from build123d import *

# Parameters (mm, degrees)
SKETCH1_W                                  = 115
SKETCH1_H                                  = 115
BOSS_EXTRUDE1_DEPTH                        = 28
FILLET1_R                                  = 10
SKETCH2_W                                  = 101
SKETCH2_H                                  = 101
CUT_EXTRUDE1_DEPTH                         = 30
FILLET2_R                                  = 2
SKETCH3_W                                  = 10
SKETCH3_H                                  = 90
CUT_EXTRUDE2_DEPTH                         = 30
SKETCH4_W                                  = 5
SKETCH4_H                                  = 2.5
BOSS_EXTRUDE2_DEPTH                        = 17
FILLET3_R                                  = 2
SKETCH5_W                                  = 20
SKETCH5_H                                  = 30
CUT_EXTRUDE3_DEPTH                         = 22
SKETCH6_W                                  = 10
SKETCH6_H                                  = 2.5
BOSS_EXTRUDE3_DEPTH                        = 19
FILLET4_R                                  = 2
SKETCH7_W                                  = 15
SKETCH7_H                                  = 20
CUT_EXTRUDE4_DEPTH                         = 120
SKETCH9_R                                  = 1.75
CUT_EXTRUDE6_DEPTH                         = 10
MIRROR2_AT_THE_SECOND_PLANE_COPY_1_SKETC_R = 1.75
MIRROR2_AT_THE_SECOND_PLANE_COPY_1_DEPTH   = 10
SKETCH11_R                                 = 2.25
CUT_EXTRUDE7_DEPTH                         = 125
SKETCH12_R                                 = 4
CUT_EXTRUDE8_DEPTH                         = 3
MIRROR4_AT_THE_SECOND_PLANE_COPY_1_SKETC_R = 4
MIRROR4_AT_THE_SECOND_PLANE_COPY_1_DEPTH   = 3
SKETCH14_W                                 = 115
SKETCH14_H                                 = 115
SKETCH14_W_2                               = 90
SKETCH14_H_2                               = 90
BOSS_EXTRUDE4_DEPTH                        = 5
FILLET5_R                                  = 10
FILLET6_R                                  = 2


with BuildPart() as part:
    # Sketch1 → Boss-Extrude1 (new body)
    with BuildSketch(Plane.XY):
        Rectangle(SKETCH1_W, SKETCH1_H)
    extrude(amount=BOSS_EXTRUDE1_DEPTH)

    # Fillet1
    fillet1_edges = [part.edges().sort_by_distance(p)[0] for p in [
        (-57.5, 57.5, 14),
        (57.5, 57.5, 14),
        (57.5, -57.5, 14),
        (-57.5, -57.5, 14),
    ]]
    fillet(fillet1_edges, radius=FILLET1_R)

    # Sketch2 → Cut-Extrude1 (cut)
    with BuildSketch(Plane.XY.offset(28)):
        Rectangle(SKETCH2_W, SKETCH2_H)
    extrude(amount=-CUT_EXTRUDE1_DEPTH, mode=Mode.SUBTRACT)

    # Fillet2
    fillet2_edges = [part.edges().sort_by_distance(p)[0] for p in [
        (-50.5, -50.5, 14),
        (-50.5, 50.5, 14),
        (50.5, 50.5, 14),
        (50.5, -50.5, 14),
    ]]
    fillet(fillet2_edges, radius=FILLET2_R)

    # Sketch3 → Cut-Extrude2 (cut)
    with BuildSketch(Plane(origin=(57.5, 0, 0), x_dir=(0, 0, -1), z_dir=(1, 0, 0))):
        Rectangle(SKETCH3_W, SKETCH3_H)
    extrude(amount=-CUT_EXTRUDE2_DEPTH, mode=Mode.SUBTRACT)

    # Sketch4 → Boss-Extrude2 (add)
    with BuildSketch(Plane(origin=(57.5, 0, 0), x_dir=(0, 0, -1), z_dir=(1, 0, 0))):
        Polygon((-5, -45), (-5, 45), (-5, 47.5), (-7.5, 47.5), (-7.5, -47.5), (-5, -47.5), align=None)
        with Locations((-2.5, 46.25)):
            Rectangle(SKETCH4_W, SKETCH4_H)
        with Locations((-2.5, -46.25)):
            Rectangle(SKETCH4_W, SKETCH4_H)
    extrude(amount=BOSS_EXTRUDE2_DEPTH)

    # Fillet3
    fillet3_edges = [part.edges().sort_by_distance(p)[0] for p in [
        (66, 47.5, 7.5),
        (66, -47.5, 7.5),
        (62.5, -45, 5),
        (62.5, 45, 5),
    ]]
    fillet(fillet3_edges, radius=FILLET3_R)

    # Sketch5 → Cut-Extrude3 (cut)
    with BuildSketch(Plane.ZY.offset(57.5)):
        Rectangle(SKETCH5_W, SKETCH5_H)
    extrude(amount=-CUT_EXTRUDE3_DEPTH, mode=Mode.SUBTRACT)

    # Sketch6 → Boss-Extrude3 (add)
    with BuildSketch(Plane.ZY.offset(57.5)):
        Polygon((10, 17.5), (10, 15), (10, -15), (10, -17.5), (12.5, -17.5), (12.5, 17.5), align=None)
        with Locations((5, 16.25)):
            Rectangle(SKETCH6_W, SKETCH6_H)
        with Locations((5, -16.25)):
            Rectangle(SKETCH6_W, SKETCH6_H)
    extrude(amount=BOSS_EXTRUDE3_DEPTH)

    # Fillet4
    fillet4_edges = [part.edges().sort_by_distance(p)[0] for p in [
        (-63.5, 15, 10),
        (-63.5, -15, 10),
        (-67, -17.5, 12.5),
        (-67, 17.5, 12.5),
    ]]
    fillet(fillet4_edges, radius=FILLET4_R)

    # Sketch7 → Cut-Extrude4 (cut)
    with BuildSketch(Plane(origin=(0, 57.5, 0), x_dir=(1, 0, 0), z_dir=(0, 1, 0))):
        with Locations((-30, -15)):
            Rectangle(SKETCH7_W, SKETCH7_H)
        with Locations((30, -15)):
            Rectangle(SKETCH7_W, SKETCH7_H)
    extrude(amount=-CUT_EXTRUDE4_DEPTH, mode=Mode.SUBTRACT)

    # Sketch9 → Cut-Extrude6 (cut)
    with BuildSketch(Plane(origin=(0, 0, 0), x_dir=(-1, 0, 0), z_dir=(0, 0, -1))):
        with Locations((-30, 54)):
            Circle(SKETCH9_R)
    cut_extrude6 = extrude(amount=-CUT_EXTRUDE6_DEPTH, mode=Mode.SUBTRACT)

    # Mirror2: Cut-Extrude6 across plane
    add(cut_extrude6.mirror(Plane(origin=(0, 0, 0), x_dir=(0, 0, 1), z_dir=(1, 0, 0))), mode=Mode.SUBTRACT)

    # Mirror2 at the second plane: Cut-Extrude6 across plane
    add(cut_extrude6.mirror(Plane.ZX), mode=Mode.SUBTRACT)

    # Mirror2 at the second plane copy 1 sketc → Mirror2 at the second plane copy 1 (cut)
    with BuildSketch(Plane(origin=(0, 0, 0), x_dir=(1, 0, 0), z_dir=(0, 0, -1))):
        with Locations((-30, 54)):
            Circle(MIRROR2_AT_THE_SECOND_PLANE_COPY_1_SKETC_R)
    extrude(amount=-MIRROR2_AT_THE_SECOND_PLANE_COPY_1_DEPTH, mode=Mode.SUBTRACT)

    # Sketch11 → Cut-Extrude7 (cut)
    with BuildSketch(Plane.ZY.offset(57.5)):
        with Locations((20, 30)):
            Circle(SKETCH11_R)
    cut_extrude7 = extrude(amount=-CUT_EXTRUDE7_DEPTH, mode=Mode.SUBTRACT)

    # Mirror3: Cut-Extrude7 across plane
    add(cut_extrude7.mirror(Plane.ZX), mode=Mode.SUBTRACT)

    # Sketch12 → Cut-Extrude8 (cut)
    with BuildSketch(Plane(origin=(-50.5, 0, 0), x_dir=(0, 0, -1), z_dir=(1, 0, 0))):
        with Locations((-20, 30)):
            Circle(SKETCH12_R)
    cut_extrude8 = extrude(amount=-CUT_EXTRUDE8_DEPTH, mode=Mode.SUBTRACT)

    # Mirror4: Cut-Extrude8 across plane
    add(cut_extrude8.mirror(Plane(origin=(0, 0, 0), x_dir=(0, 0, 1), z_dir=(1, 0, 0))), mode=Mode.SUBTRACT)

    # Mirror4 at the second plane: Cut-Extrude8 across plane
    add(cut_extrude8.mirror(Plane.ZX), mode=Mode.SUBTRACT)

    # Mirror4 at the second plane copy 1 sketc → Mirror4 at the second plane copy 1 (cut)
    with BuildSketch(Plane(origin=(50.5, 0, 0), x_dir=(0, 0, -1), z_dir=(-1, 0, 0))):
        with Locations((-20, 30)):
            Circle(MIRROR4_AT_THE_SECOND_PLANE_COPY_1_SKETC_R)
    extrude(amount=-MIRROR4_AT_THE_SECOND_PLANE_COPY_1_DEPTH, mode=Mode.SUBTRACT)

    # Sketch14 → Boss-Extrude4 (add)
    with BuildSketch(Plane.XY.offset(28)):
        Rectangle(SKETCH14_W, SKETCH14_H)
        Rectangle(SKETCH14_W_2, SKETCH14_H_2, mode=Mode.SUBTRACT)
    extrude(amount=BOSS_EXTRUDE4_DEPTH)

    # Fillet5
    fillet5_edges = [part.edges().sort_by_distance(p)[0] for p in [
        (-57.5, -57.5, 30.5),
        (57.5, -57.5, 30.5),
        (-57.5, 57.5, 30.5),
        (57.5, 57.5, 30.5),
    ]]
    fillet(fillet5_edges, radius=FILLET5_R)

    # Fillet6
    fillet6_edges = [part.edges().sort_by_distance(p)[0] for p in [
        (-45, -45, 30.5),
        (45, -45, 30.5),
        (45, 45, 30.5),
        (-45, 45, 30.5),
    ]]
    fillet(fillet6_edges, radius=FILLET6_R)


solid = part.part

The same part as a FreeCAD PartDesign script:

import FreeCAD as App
import Part
import Sketcher

V = App.Vector
Q = App.Units.Quantity


def edges_at(feature, points):
    """Names of the edges that pass closest to the given points."""
    edges = feature.Shape.Edges
    near = lambda p: min(range(len(edges)), key=lambda i: edges[i].distToShape(Part.Vertex(*p))[0])
    return sorted({f"Edge{near(p) + 1}" for p in points})

doc = App.newDocument("Part")
body = doc.addObject("PartDesign::Body", "Body")

# Sketch on XY plane
sketch1 = body.newObject("Sketcher::SketchObject", "Sketch")
sketch1.AttachmentSupport = (doc.getObject("XY_Plane"), [""])
sketch1.MapMode = "FlatFace"
sketch1.addGeometry([
    Part.LineSegment(V(-57.5, 57.5, 0), V(-57.5, -57.5, 0)),
    Part.LineSegment(V(-57.5, -57.5, 0), V(57.5, -57.5, 0)),
    Part.LineSegment(V(57.5, -57.5, 0), V(57.5, 57.5, 0)),
    Part.LineSegment(V(57.5, 57.5, 0), V(-57.5, 57.5, 0)),
], False)
sketch1.addConstraint([
    Sketcher.Constraint("Coincident", 0, 2, 1, 1),
    Sketcher.Constraint("Coincident", 1, 2, 2, 1),
    Sketcher.Constraint("Coincident", 2, 2, 3, 1),
    Sketcher.Constraint("Coincident", 3, 2, 0, 1),
    Sketcher.Constraint("Vertical", 0),
    Sketcher.Constraint("Horizontal", 1),
    Sketcher.Constraint("Vertical", 2),
    Sketcher.Constraint("Horizontal", 3),
    Sketcher.Constraint("Symmetric", 0, 2, 2, 2, -1, 1),
    Sketcher.Constraint("Equal", 3, 0),
    Sketcher.Constraint("DistanceX", 1, 1, 1, 2, Q("115 mm")),
])
pad1 = body.newObject("PartDesign::Pad", "Pad")
pad1.Profile = sketch1
pad1.Length = 28
doc.recompute()

fillet = body.newObject("PartDesign::Fillet", "Fillet")
fillet.Base = (pad1, edges_at(pad1, [
    (-57.5, 57.5, 14),
    (57.5, 57.5, 14),
    (57.5, -57.5, 14),
    (-57.5, -57.5, 14),
]))
fillet.Radius = 10

# Sketch on XY plane
sketch2 = body.newObject("Sketcher::SketchObject", "Sketch001")
sketch2.AttachmentSupport = (doc.getObject("XY_Plane"), [""])
sketch2.MapMode = "FlatFace"
sketch2.AttachmentOffset = App.Placement(V(0, 0, 28), App.Rotation())
sketch2.addGeometry([
    Part.LineSegment(V(-50.5, 50.5, 0), V(-50.5, -50.5, 0)),
    Part.LineSegment(V(-50.5, -50.5, 0), V(50.5, -50.5, 0)),
    Part.LineSegment(V(50.5, -50.5, 0), V(50.5, 50.5, 0)),
    Part.LineSegment(V(50.5, 50.5, 0), V(-50.5, 50.5, 0)),
], False)
sketch2.addConstraint([
    Sketcher.Constraint("Coincident", 0, 2, 1, 1),
    Sketcher.Constraint("Coincident", 1, 2, 2, 1),
    Sketcher.Constraint("Coincident", 2, 2, 3, 1),
    Sketcher.Constraint("Coincident", 3, 2, 0, 1),
    Sketcher.Constraint("Vertical", 0),
    Sketcher.Constraint("Horizontal", 1),
    Sketcher.Constraint("Vertical", 2),
    Sketcher.Constraint("Horizontal", 3),
    Sketcher.Constraint("Symmetric", 0, 2, 2, 2, -1, 1),
    Sketcher.Constraint("Equal", 3, 0),
    Sketcher.Constraint("DistanceX", 1, 1, 1, 2, Q("101 mm")),
])
pocket1 = body.newObject("PartDesign::Pocket", "Pocket")
pocket1.Profile = sketch2
pocket1.Length = 30
doc.recompute()

fillet2 = body.newObject("PartDesign::Fillet", "Fillet001")
fillet2.Base = (pocket1, edges_at(pocket1, [
    (-50.5, -50.5, 14),
    (-50.5, 50.5, 14),
    (50.5, 50.5, 14),
    (50.5, -50.5, 14),
]))
fillet2.Radius = 2

# Sketch on YZ plane
sketch3 = body.newObject("Sketcher::SketchObject", "Sketch002")
sketch3.AttachmentSupport = (doc.getObject("YZ_Plane"), [""])
sketch3.MapMode = "FlatFace"
sketch3.AttachmentOffset = App.Placement(V(0, 0, 57.5), App.Rotation())
sketch3.addGeometry([
    Part.LineSegment(V(45, 5, 0), V(-45, 5, 0)),
    Part.LineSegment(V(-45, 5, 0), V(-45, -5, 0)),
    Part.LineSegment(V(-45, -5, 0), V(45, -5, 0)),
    Part.LineSegment(V(45, -5, 0), V(45, 5, 0)),
], False)
sketch3.addConstraint([
    Sketcher.Constraint("Coincident", 0, 2, 1, 1),
    Sketcher.Constraint("Coincident", 1, 2, 2, 1),
    Sketcher.Constraint("Coincident", 2, 2, 3, 1),
    Sketcher.Constraint("Coincident", 3, 2, 0, 1),
    Sketcher.Constraint("Horizontal", 0),
    Sketcher.Constraint("Vertical", 1),
    Sketcher.Constraint("Horizontal", 2),
    Sketcher.Constraint("Vertical", 3),
    Sketcher.Constraint("Symmetric", 0, 2, 2, 2, -1, 1),
    Sketcher.Constraint("DistanceX", 0, 2, 0, 1, Q("90 mm")),
    Sketcher.Constraint("DistanceY", 1, 2, 1, 1, Q("10 mm")),
])
pocket2 = body.newObject("PartDesign::Pocket", "Pocket001")
pocket2.Profile = sketch3
pocket2.Length = 30

# Sketch on YZ plane
sketch4 = body.newObject("Sketcher::SketchObject", "Sketch003")
sketch4.AttachmentSupport = (doc.getObject("YZ_Plane"), [""])
sketch4.MapMode = "FlatFace"
sketch4.AttachmentOffset = App.Placement(V(0, 0, 57.5), App.Rotation())
sketch4.addGeometry([
    Part.LineSegment(V(47.5, 7.5, 0), V(-47.5, 7.5, 0)),  # 0
    Part.LineSegment(V(-47.5, 7.5, 0), V(-47.5, 0, 0)),  # 1
    Part.LineSegment(V(-47.5, 0, 0), V(-45, 0, 0)),  # 2
    Part.LineSegment(V(-45, 0, 0), V(-45, 5, 0)),  # 3
    Part.LineSegment(V(-45, 5, 0), V(45, 5, 0)),  # 4
    Part.LineSegment(V(45, 5, 0), V(45, 0, 0)),  # 5
    Part.LineSegment(V(45, 0, 0), V(47.5, 0, 0)),  # 6
    Part.LineSegment(V(47.5, 0, 0), V(47.5, 7.5, 0)),  # 7
], False)
sketch4.addConstraint([
    Sketcher.Constraint("Coincident", 0, 2, 1, 1),
    Sketcher.Constraint("Coincident", 1, 2, 2, 1),
    Sketcher.Constraint("Coincident", 2, 2, 3, 1),
    Sketcher.Constraint("Coincident", 3, 2, 4, 1),
    Sketcher.Constraint("Coincident", 4, 2, 5, 1),
    Sketcher.Constraint("Coincident", 5, 2, 6, 1),
    Sketcher.Constraint("Coincident", 6, 2, 7, 1),
    Sketcher.Constraint("Coincident", 7, 2, 0, 1),
    Sketcher.Constraint("Horizontal", 0),
    Sketcher.Constraint("Vertical", 1),
    Sketcher.Constraint("Horizontal", 2),
    Sketcher.Constraint("Vertical", 3),
    Sketcher.Constraint("Horizontal", 4),
    Sketcher.Constraint("Vertical", 5),
    Sketcher.Constraint("Horizontal", 6),
    Sketcher.Constraint("Vertical", 7),
    Sketcher.Constraint("Symmetric", 2, 2, 5, 2, -1, 1),
    Sketcher.Constraint("Symmetric", 1, 2, 6, 2, -2),
    Sketcher.Constraint("DistanceX", 0, 2, 0, 1, Q("95 mm")),
    Sketcher.Constraint("DistanceX", 4, 1, 4, 2, Q("90 mm")),
    Sketcher.Constraint("DistanceY", 3, 1, 3, 2, Q("5 mm")),
    Sketcher.Constraint("DistanceY", 1, 2, 1, 1, Q("7.5 mm")),
])
pad2 = body.newObject("PartDesign::Pad", "Pad001")
pad2.Profile = sketch4
pad2.Length = 17
doc.recompute()

fillet3 = body.newObject("PartDesign::Fillet", "Fillet002")
fillet3.Base = (pad2, edges_at(pad2, [
    (66, 47.5, 7.5),
    (66, -47.5, 7.5),
    (62.5, -45, 5),
    (62.5, 45, 5),
]))
fillet3.Radius = 2

# Sketch on YZ plane
sketch5 = body.newObject("Sketcher::SketchObject", "Sketch004")
sketch5.AttachmentSupport = (doc.getObject("YZ_Plane"), [""])
sketch5.MapMode = "FlatFace"
sketch5.AttachmentOffset = App.Placement(V(0, 0, -57.5), App.Rotation())
sketch5.addGeometry([
    Part.LineSegment(V(15, -10, 0), V(-15, -10, 0)),
    Part.LineSegment(V(-15, -10, 0), V(-15, 10, 0)),
    Part.LineSegment(V(-15, 10, 0), V(15, 10, 0)),
    Part.LineSegment(V(15, 10, 0), V(15, -10, 0)),
], False)
sketch5.addConstraint([
    Sketcher.Constraint("Coincident", 0, 2, 1, 1),
    Sketcher.Constraint("Coincident", 1, 2, 2, 1),
    Sketcher.Constraint("Coincident", 2, 2, 3, 1),
    Sketcher.Constraint("Coincident", 3, 2, 0, 1),
    Sketcher.Constraint("Horizontal", 0),
    Sketcher.Constraint("Vertical", 1),
    Sketcher.Constraint("Horizontal", 2),
    Sketcher.Constraint("Vertical", 3),
    Sketcher.Constraint("Symmetric", 0, 2, 2, 2, -1, 1),
    Sketcher.Constraint("DistanceX", 0, 2, 0, 1, Q("30 mm")),
    Sketcher.Constraint("DistanceY", 1, 1, 1, 2, Q("20 mm")),
])
pocket3 = body.newObject("PartDesign::Pocket", "Pocket002")
pocket3.Profile = sketch5
pocket3.Length = 22
pocket3.Reversed = True

# Sketch on YZ plane
sketch6 = body.newObject("Sketcher::SketchObject", "Sketch005")
sketch6.AttachmentSupport = (doc.getObject("YZ_Plane"), [""])
sketch6.MapMode = "FlatFace"
sketch6.AttachmentOffset = App.Placement(V(0, 0, -57.5), App.Rotation())
sketch6.addGeometry([
    Part.LineSegment(V(15, 10, 0), V(-15, 10, 0)),  # 0
    Part.LineSegment(V(-15, 10, 0), V(-15, 0, 0)),  # 1
    Part.LineSegment(V(-15, 0, 0), V(-17.5, 0, 0)),  # 2
    Part.LineSegment(V(-17.5, 0, 0), V(-17.5, 12.5, 0)),  # 3
    Part.LineSegment(V(-17.5, 12.5, 0), V(17.5, 12.5, 0)),  # 4
    Part.LineSegment(V(17.5, 12.5, 0), V(17.5, 0, 0)),  # 5
    Part.LineSegment(V(17.5, 0, 0), V(15, 0, 0)),  # 6
    Part.LineSegment(V(15, 0, 0), V(15, 10, 0)),  # 7
], False)
sketch6.addConstraint([
    Sketcher.Constraint("Coincident", 0, 2, 1, 1),
    Sketcher.Constraint("Coincident", 1, 2, 2, 1),
    Sketcher.Constraint("Coincident", 2, 2, 3, 1),
    Sketcher.Constraint("Coincident", 3, 2, 4, 1),
    Sketcher.Constraint("Coincident", 4, 2, 5, 1),
    Sketcher.Constraint("Coincident", 5, 2, 6, 1),
    Sketcher.Constraint("Coincident", 6, 2, 7, 1),
    Sketcher.Constraint("Coincident", 7, 2, 0, 1),
    Sketcher.Constraint("Horizontal", 0),
    Sketcher.Constraint("Vertical", 1),
    Sketcher.Constraint("Horizontal", 2),
    Sketcher.Constraint("Vertical", 3),
    Sketcher.Constraint("Horizontal", 4),
    Sketcher.Constraint("Vertical", 5),
    Sketcher.Constraint("Horizontal", 6),
    Sketcher.Constraint("Vertical", 7),
    Sketcher.Constraint("Symmetric", 2, 2, 5, 2, -1, 1),
    Sketcher.Constraint("Symmetric", 1, 2, 6, 2, -2),
    Sketcher.Constraint("DistanceX", 0, 2, 0, 1, Q("30 mm")),
    Sketcher.Constraint("DistanceX", 4, 1, 4, 2, Q("35 mm")),
    Sketcher.Constraint("DistanceY", 1, 2, 1, 1, Q("10 mm")),
    Sketcher.Constraint("DistanceY", 3, 1, 3, 2, Q("12.5 mm")),
])
pad3 = body.newObject("PartDesign::Pad", "Pad002")
pad3.Profile = sketch6
pad3.Length = 19
pad3.Reversed = True
doc.recompute()

fillet4 = body.newObject("PartDesign::Fillet", "Fillet003")
fillet4.Base = (pad3, edges_at(pad3, [
    (-63.5, 15, 10),
    (-63.5, -15, 10),
    (-67, -17.5, 12.5),
    (-67, 17.5, 12.5),
]))
fillet4.Radius = 2

# Sketch on XZ plane
sketch7 = body.newObject("Sketcher::SketchObject", "Sketch006")
sketch7.AttachmentSupport = (doc.getObject("XZ_Plane"), [""])
sketch7.MapMode = "FlatFace"
sketch7.AttachmentOffset = App.Placement(V(0, 0, -57.5), App.Rotation())
sketch7.addGeometry([
    Part.LineSegment(V(-37.5, 5, 0), V(-37.5, 25, 0)),  # 0
    Part.LineSegment(V(-37.5, 25, 0), V(-22.5, 25, 0)),  # 1
    Part.LineSegment(V(-22.5, 25, 0), V(-22.5, 5, 0)),  # 2
    Part.LineSegment(V(-22.5, 5, 0), V(-37.5, 5, 0)),  # 3
    Part.LineSegment(V(22.5, 5, 0), V(22.5, 25, 0)),  # 4
    Part.LineSegment(V(22.5, 25, 0), V(37.5, 25, 0)),  # 5
    Part.LineSegment(V(37.5, 25, 0), V(37.5, 5, 0)),  # 6
    Part.LineSegment(V(37.5, 5, 0), V(22.5, 5, 0)),  # 7
], False)
sketch7.addConstraint([
    Sketcher.Constraint("Coincident", 0, 2, 1, 1),
    Sketcher.Constraint("Coincident", 1, 2, 2, 1),
    Sketcher.Constraint("Coincident", 2, 2, 3, 1),
    Sketcher.Constraint("Coincident", 3, 2, 0, 1),
    Sketcher.Constraint("Coincident", 4, 2, 5, 1),
    Sketcher.Constraint("Coincident", 5, 2, 6, 1),
    Sketcher.Constraint("Coincident", 6, 2, 7, 1),
    Sketcher.Constraint("Coincident", 7, 2, 4, 1),
    Sketcher.Constraint("Vertical", 0),
    Sketcher.Constraint("Horizontal", 1),
    Sketcher.Constraint("Vertical", 2),
    Sketcher.Constraint("Horizontal", 3),
    Sketcher.Constraint("Vertical", 4),
    Sketcher.Constraint("Horizontal", 5),
    Sketcher.Constraint("Vertical", 6),
    Sketcher.Constraint("Horizontal", 7),
    Sketcher.Constraint("Symmetric", 1, 2, 4, 2, -2),
    Sketcher.Constraint("Symmetric", 3, 2, 6, 2, -2),
    Sketcher.Constraint("DistanceX", 1, 1, 1, 2, Q("15 mm")),
    Sketcher.Constraint("DistanceY", 0, 1, 0, 2, Q("20 mm")),
    Sketcher.Constraint("DistanceY", -1, 1, 0, 2, Q("25 mm")),
    Sketcher.Constraint("DistanceX", 1, 2, 4, 2, Q("45 mm")),
])
pocket4 = body.newObject("PartDesign::Pocket", "Pocket003")
pocket4.Profile = sketch7
pocket4.Length = 120
pocket4.Reversed = True

# Sketch on XY plane
sketch8 = body.newObject("Sketcher::SketchObject", "Sketch007")
sketch8.AttachmentSupport = (doc.getObject("XY_Plane"), [""])
sketch8.MapMode = "FlatFace"
sketch8.addGeometry(Part.Circle(V(30, 54, 0), V(0, 0, 1), 1.75), False)
sketch8.addConstraint([
    Sketcher.Constraint("Diameter", 0, Q("3.5 mm")),
    Sketcher.Constraint("DistanceX", -1, 1, 0, 3, Q("30 mm")),
    Sketcher.Constraint("DistanceY", -1, 1, 0, 3, Q("54 mm")),
])
pocket5 = body.newObject("PartDesign::Pocket", "Pocket004")
pocket5.Profile = sketch8
pocket5.Length = 10
pocket5.Reversed = True
doc.recompute()

mirrored = body.newObject("PartDesign::Mirrored", "Mirrored")
mirrored.Originals = [pocket5]
mirrored.MirrorPlane = (doc.getObject("YZ_Plane"), [""])
body.Tip = mirrored
doc.recompute()

mirrored2 = body.newObject("PartDesign::Mirrored", "Mirrored001")
mirrored2.Originals = [pocket5]
mirrored2.MirrorPlane = (doc.getObject("XZ_Plane"), [""])
body.Tip = mirrored2

# Sketch on XY plane
sketch9 = body.newObject("Sketcher::SketchObject", "Sketch008")
sketch9.AttachmentSupport = (doc.getObject("XY_Plane"), [""])
sketch9.MapMode = "FlatFace"
sketch9.addGeometry(Part.Circle(V(-30, -54, 0), V(0, 0, 1), 1.75), False)
sketch9.addConstraint([
    Sketcher.Constraint("Diameter", 0, Q("3.5 mm")),
    Sketcher.Constraint("DistanceX", 0, 3, -1, 1, Q("30 mm")),
    Sketcher.Constraint("DistanceY", 0, 3, -1, 1, Q("54 mm")),
])
pocket6 = body.newObject("PartDesign::Pocket", "Pocket005")
pocket6.Profile = sketch9
pocket6.Length = 10
pocket6.Reversed = True

# Sketch on YZ plane
sketch10 = body.newObject("Sketcher::SketchObject", "Sketch009")
sketch10.AttachmentSupport = (doc.getObject("YZ_Plane"), [""])
sketch10.MapMode = "FlatFace"
sketch10.AttachmentOffset = App.Placement(V(0, 0, -57.5), App.Rotation())
sketch10.addGeometry(Part.Circle(V(30, 20, 0), V(0, 0, 1), 2.25), False)
sketch10.addConstraint([
    Sketcher.Constraint("Diameter", 0, Q("4.5 mm")),
    Sketcher.Constraint("DistanceX", -1, 1, 0, 3, Q("30 mm")),
    Sketcher.Constraint("DistanceY", -1, 1, 0, 3, Q("20 mm")),
])
pocket7 = body.newObject("PartDesign::Pocket", "Pocket006")
pocket7.Profile = sketch10
pocket7.Length = 125
pocket7.Reversed = True
doc.recompute()

mirrored3 = body.newObject("PartDesign::Mirrored", "Mirrored002")
mirrored3.Originals = [pocket7]
mirrored3.MirrorPlane = (doc.getObject("XZ_Plane"), [""])
body.Tip = mirrored3

# Sketch on YZ plane
sketch11 = body.newObject("Sketcher::SketchObject", "Sketch010")
sketch11.AttachmentSupport = (doc.getObject("YZ_Plane"), [""])
sketch11.MapMode = "FlatFace"
sketch11.AttachmentOffset = App.Placement(V(0, 0, -50.5), App.Rotation())
sketch11.addGeometry(Part.Circle(V(30, 20, 0), V(0, 0, 1), 4), False)
sketch11.addConstraint([
    Sketcher.Constraint("Diameter", 0, Q("8 mm")),
    Sketcher.Constraint("DistanceX", -1, 1, 0, 3, Q("30 mm")),
    Sketcher.Constraint("DistanceY", -1, 1, 0, 3, Q("20 mm")),
])
pocket8 = body.newObject("PartDesign::Pocket", "Pocket007")
pocket8.Profile = sketch11
pocket8.Length = 3
doc.recompute()

mirrored4 = body.newObject("PartDesign::Mirrored", "Mirrored003")
mirrored4.Originals = [pocket8]
mirrored4.MirrorPlane = (doc.getObject("YZ_Plane"), [""])
body.Tip = mirrored4
doc.recompute()

mirrored5 = body.newObject("PartDesign::Mirrored", "Mirrored004")
mirrored5.Originals = [pocket8]
mirrored5.MirrorPlane = (doc.getObject("XZ_Plane"), [""])
body.Tip = mirrored5

# Sketch on YZ plane
sketch12 = body.newObject("Sketcher::SketchObject", "Sketch011")
sketch12.AttachmentSupport = (doc.getObject("YZ_Plane"), [""])
sketch12.MapMode = "FlatFace"
sketch12.AttachmentOffset = App.Placement(V(0, 0, 50.5), App.Rotation())
sketch12.addGeometry(Part.Circle(V(-30, 20, 0), V(0, 0, 1), 4), False)
sketch12.addConstraint([
    Sketcher.Constraint("Diameter", 0, Q("8 mm")),
    Sketcher.Constraint("DistanceX", 0, 3, -1, 1, Q("30 mm")),
    Sketcher.Constraint("DistanceY", -1, 1, 0, 3, Q("20 mm")),
])
pocket9 = body.newObject("PartDesign::Pocket", "Pocket008")
pocket9.Profile = sketch12
pocket9.Length = 3
pocket9.Reversed = True

# Sketch on XY plane
sketch13 = body.newObject("Sketcher::SketchObject", "Sketch012")
sketch13.AttachmentSupport = (doc.getObject("XY_Plane"), [""])
sketch13.MapMode = "FlatFace"
sketch13.AttachmentOffset = App.Placement(V(0, 0, 28), App.Rotation())
sketch13.addGeometry([
    Part.LineSegment(V(-57.5, 57.5, 0), V(-57.5, -57.5, 0)),  # 0
    Part.LineSegment(V(-57.5, -57.5, 0), V(57.5, -57.5, 0)),  # 1
    Part.LineSegment(V(57.5, -57.5, 0), V(57.5, 57.5, 0)),  # 2
    Part.LineSegment(V(57.5, 57.5, 0), V(-57.5, 57.5, 0)),  # 3
    Part.LineSegment(V(45, -45, 0), V(-45, -45, 0)),  # 4
    Part.LineSegment(V(-45, -45, 0), V(-45, 45, 0)),  # 5
    Part.LineSegment(V(-45, 45, 0), V(45, 45, 0)),  # 6
    Part.LineSegment(V(45, 45, 0), V(45, -45, 0)),  # 7
], False)
sketch13.addConstraint([
    Sketcher.Constraint("Coincident", 0, 2, 1, 1),
    Sketcher.Constraint("Coincident", 1, 2, 2, 1),
    Sketcher.Constraint("Coincident", 2, 2, 3, 1),
    Sketcher.Constraint("Coincident", 3, 2, 0, 1),
    Sketcher.Constraint("Coincident", 4, 2, 5, 1),
    Sketcher.Constraint("Coincident", 5, 2, 6, 1),
    Sketcher.Constraint("Coincident", 6, 2, 7, 1),
    Sketcher.Constraint("Coincident", 7, 2, 4, 1),
    Sketcher.Constraint("Vertical", 0),
    Sketcher.Constraint("Horizontal", 1),
    Sketcher.Constraint("Vertical", 2),
    Sketcher.Constraint("Horizontal", 3),
    Sketcher.Constraint("Horizontal", 4),
    Sketcher.Constraint("Vertical", 5),
    Sketcher.Constraint("Horizontal", 6),
    Sketcher.Constraint("Vertical", 7),
    Sketcher.Constraint("Symmetric", 0, 2, 2, 2, -1, 1),
    Sketcher.Constraint("Symmetric", 4, 2, 6, 2, -1, 1),
    Sketcher.Constraint("Equal", 3, 0),
    Sketcher.Constraint("Equal", 6, 5),
    Sketcher.Constraint("DistanceX", 1, 1, 1, 2, Q("115 mm")),
    Sketcher.Constraint("DistanceX", 4, 2, 4, 1, Q("90 mm")),
])
pad4 = body.newObject("PartDesign::Pad", "Pad003")
pad4.Profile = sketch13
pad4.Length = 5
doc.recompute()

fillet5 = body.newObject("PartDesign::Fillet", "Fillet004")
fillet5.Base = (pad4, edges_at(pad4, [
    (-57.5, -57.5, 30.5),
    (57.5, -57.5, 30.5),
    (-57.5, 57.5, 30.5),
    (57.5, 57.5, 30.5),
]))
fillet5.Radius = 10
doc.recompute()

fillet6 = body.newObject("PartDesign::Fillet", "Fillet005")
fillet6.Base = (fillet5, edges_at(fillet5, [
    (-45, -45, 30.5),
    (45, -45, 30.5),
    (45, 45, 30.5),
    (-45, 45, 30.5),
]))
fillet6.Radius = 2

doc.recompute()
